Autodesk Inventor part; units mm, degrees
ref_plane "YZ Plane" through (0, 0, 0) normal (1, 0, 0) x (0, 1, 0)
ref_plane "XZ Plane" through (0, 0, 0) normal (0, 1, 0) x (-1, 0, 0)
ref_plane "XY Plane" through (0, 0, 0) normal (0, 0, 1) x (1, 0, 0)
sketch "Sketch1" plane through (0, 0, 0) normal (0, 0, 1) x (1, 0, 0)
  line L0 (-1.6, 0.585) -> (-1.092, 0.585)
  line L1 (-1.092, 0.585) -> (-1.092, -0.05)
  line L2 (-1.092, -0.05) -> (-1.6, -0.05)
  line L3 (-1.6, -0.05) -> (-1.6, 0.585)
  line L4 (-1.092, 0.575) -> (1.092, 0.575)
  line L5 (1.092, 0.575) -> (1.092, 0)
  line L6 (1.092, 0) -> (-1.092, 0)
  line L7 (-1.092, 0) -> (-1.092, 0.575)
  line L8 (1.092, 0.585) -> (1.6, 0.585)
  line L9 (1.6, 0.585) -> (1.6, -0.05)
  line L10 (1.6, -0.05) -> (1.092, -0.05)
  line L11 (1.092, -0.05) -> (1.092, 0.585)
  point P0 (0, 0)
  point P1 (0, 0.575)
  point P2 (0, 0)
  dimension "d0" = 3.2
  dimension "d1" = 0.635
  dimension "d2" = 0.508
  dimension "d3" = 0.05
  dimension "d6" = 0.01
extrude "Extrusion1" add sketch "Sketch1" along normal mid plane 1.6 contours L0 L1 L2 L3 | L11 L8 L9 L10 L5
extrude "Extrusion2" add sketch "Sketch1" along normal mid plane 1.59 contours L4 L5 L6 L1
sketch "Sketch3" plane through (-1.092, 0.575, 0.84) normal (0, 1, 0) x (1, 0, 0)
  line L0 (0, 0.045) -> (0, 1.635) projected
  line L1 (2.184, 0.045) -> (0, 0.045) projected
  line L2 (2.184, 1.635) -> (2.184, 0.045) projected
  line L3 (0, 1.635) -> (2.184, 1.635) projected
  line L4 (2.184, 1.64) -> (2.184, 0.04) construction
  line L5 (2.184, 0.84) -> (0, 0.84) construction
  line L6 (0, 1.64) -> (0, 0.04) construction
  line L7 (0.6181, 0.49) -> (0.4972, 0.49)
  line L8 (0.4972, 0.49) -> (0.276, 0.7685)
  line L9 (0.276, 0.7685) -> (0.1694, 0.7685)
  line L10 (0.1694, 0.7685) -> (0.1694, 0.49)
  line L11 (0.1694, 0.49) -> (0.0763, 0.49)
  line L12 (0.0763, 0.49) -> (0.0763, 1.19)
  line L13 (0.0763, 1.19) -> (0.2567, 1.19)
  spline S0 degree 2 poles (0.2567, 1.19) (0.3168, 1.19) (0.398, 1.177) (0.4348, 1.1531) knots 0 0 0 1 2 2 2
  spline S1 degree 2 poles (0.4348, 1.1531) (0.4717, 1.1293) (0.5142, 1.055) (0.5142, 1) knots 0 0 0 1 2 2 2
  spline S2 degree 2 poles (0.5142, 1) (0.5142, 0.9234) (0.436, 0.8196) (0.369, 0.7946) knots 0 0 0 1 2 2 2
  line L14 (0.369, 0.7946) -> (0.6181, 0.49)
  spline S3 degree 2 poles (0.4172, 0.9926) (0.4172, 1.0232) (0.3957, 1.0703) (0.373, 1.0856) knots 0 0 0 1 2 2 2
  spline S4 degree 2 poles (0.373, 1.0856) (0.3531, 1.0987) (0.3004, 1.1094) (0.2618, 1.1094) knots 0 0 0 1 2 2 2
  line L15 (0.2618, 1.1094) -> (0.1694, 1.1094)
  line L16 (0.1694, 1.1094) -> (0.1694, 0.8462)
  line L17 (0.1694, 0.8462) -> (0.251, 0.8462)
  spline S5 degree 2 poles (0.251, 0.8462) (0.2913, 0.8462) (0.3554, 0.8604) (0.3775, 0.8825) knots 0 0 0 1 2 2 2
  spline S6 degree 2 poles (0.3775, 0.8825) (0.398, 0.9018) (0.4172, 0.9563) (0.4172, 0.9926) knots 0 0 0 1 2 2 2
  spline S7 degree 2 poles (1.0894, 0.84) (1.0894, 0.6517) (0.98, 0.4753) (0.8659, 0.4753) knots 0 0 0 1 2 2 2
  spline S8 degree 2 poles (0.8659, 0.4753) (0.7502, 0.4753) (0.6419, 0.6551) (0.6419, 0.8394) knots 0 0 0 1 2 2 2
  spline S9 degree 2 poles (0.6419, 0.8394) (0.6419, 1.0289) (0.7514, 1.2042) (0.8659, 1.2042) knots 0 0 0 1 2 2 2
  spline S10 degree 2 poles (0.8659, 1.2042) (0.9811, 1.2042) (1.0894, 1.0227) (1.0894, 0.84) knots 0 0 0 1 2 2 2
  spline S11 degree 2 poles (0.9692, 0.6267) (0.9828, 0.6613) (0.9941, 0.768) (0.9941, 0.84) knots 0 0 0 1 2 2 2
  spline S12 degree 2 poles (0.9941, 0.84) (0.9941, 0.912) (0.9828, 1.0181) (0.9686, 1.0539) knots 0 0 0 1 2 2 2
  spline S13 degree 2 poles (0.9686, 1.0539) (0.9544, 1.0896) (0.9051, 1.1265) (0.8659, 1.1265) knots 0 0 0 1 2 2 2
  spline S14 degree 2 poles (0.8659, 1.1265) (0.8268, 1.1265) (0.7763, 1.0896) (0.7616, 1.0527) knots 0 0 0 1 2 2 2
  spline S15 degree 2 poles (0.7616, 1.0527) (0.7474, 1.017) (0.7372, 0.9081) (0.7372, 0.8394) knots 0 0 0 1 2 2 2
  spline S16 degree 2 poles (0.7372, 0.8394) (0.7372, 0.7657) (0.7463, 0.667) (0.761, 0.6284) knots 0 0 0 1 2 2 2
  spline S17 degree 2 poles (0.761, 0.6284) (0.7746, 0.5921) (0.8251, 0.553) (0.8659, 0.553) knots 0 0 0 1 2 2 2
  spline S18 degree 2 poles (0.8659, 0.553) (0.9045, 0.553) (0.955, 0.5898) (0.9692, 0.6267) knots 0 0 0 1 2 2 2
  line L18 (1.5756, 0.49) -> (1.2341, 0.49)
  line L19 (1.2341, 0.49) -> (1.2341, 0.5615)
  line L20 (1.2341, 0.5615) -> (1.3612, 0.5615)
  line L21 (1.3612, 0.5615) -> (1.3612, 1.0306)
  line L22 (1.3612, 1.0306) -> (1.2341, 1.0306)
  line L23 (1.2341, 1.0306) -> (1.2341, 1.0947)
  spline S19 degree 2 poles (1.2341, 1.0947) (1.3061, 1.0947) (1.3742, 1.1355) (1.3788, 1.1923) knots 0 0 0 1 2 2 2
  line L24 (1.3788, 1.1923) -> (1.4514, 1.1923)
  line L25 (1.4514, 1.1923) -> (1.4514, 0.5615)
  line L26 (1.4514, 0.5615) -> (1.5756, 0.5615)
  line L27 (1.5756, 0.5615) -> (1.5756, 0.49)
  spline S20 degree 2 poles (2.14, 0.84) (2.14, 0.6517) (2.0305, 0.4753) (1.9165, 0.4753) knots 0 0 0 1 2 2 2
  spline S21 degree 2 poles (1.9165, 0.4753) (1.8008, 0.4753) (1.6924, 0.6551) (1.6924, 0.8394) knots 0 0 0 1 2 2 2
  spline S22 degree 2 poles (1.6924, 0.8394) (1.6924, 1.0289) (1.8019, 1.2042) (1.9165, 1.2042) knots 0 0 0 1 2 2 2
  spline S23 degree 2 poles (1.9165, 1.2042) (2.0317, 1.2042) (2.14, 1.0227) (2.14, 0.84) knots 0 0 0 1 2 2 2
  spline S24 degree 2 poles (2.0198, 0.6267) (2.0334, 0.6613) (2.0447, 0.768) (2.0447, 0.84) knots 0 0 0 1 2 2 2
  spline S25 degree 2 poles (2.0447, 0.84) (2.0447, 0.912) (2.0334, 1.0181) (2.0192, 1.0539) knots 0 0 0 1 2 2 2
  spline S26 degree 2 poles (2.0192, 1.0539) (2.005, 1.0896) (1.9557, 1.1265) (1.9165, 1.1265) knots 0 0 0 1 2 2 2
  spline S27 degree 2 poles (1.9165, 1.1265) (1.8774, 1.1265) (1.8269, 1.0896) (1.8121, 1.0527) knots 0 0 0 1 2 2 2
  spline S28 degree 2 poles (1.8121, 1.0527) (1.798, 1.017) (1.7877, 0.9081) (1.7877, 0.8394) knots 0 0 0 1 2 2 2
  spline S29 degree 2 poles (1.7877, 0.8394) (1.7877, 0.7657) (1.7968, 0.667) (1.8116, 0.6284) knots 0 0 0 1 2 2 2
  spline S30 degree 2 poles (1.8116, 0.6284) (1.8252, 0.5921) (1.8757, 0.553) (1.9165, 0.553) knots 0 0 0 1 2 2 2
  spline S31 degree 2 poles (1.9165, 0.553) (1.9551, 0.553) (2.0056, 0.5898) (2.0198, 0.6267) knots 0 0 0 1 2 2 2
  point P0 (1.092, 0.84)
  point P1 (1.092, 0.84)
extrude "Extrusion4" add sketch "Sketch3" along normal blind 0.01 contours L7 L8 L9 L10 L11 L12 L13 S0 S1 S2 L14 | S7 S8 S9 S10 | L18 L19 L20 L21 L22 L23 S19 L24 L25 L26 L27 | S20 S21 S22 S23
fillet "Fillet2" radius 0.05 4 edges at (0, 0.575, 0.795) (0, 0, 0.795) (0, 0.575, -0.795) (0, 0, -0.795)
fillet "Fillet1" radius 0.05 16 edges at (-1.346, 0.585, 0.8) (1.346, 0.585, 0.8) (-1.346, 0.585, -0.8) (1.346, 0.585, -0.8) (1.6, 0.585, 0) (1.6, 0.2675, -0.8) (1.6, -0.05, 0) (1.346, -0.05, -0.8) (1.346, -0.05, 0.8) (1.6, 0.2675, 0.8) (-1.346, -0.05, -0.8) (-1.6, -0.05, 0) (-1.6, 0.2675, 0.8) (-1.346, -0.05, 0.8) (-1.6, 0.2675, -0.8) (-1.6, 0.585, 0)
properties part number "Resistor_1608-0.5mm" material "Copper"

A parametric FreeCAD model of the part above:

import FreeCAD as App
import Part
import Sketcher
from FreeCAD import Vector
Q = App.Units.Quantity


def edges_at(feature, points):
    """Names of the edges that pass closest to the given points."""
    edges = feature.Shape.Edges
    near = lambda p: min(range(len(edges)), key=lambda i: edges[i].distToShape(Part.Vertex(*p))[0])
    return sorted({f"Edge{near(p) + 1}" for p in points})


def add_polygon(sketch, points):
    """Adds a closed chain of lines whose ends are joined by coincident constraints."""
    first, n = sketch.GeometryCount, len(points)
    for a, b in zip(points, points[1:] + points[:1]):
        sketch.addGeometry(Part.LineSegment(App.Vector(*a, 0), App.Vector(*b, 0)), False)
    for i in range(n):
        sketch.addConstraint(Sketcher.Constraint("Coincident", first + i, 2, first + (i + 1) % n, 1))

doc = App.newDocument("Part")
body = doc.addObject("PartDesign::Body", "Body")
body.AllowCompound = True

# Sketch on XY plane
sketch1 = body.newObject("Sketcher::SketchObject", "Sketch")
sketch1.AttachmentSupport = (doc.getObject("XY_Plane"), [""])
sketch1.MapMode = "FlatFace"
add_polygon(sketch1, [(-1.1, 0.6), (-1.6, 0.6), (-1.6, -0.1), (-1.1, -0.1)])  # lines 0-3
add_polygon(sketch1, [(1.1, 0.6), (1.1, -0.1), (1.6, -0.1), (1.6, 0.6)])  # lines 4-7
sketch1.addConstraint([
    Sketcher.Constraint("Horizontal", 0),
    Sketcher.Constraint("Vertical", 1),
    Sketcher.Constraint("Horizontal", 2),
    Sketcher.Constraint("Vertical", 3),
    Sketcher.Constraint("Vertical", 4),
    Sketcher.Constraint("Horizontal", 5),
    Sketcher.Constraint("Vertical", 6),
    Sketcher.Constraint("Horizontal", 7),
    Sketcher.Constraint("Symmetric", 2, 2, 4, 2, -2),
    Sketcher.Constraint("Symmetric", 0, 2, 6, 2, -2),
    Sketcher.Constraint("DistanceX", 0, 2, 0, 1, Q("0.02 in")),
    Sketcher.Constraint("DistanceY", 1, 2, 1, 1, Q("0.025 in")),
    Sketcher.Constraint("DistanceY", 1, 2, -1, 1, Q("0.05 mm")),
    Sketcher.Constraint("DistanceX", 1, 2, 5, 2, Q("3.2 mm")),
])
pad1 = body.newObject("PartDesign::Pad", "Pad")
pad1.Profile = sketch1
pad1.Length = Q("0.0629921 in")
pad1.Midplane = True

# Sketch on XY plane
sketch2 = body.newObject("Sketcher::SketchObject", "Sketch001")
sketch2.AttachmentSupport = (doc.getObject("XY_Plane"), [""])
sketch2.MapMode = "FlatFace"
add_polygon(sketch2, [(1.1, 0.6), (-1.1, 0.6), (-1.1, 0), (1.1, 0)])  # lines 0-3
sketch2.addConstraint([
    Sketcher.Constraint("Horizontal", 0),
    Sketcher.Constraint("Vertical", 1),
    Sketcher.Constraint("Horizontal", 2),
    Sketcher.Constraint("Vertical", 3),
    Sketcher.Constraint("Symmetric", 1, 2, 2, 2, -1, 1),
    Sketcher.Constraint("DistanceX", 0, 2, -1, 1, Q("0.043 in")),
    Sketcher.Constraint("DistanceY", 1, 2, 1, 1, Q("0.575 mm")),
])
pad2 = body.newObject("PartDesign::Pad", "Pad001")
pad2.Profile = sketch2
pad2.Length = Q("0.0625984 in")
pad2.Midplane = True

# Sketch on XZ plane
sketch3 = body.newObject("Sketcher::SketchObject", "Sketch002")
sketch3.AttachmentSupport = (doc.getObject("XZ_Plane"), [""])
sketch3.MapMode = "FlatFace"
sketch3.AttachmentOffset = App.Placement(Vector(0, 0, -0.575), App.Rotation())
sketch3.addGeometry([
    Part.LineSegment(Vector(-0.5948, 0.35, 0), Vector(-0.4739, 0.35, 0)),  # 0
    Part.LineSegment(Vector(-0.4739, 0.35, 0), Vector(-0.723, 0.0454, 0)),  # 1
    Part.BSplineCurve([Vector(-0.5778, -0.16, 0), Vector(-0.5778, -0.0834, 0), Vector(-0.656, 0.0204, 0), Vector(-0.723, 0.0454, 0)], [3, 1, 3], [0, 1, 2], False, 2, [1, 1, 1, 1], False),  # 2
    Part.BSplineCurve([Vector(-0.6572, -0.3131, 0), Vector(-0.6203, -0.2893, 0), Vector(-0.5778, -0.215, 0), Vector(-0.5778, -0.16, 0)], [3, 1, 3], [0, 1, 2], False, 2, [1, 1, 1, 1], False),  # 3
    Part.BSplineCurve([Vector(-0.8353, -0.35, 0), Vector(-0.7752, -0.35, 0), Vector(-0.694, -0.337, 0), Vector(-0.6572, -0.3131, 0)], [3, 1, 3], [0, 1, 2], False, 2, [1, 1, 1, 1], False),  # 4
    Part.LineSegment(Vector(-0.8353, -0.35, 0), Vector(-1.0157, -0.35, 0)),  # 5
    Part.LineSegment(Vector(-1.0157, -0.35, 0), Vector(-1.0157, 0.35, 0)),  # 6
    Part.LineSegment(Vector(-1.0157, 0.35, 0), Vector(-0.9226, 0.35, 0)),  # 7
    Part.LineSegment(Vector(-0.9226, 0.35, 0), Vector(-0.9226, 0.0715, 0)),  # 8
    Part.LineSegment(Vector(-0.9226, 0.0715, 0), Vector(-0.816, 0.0715, 0)),  # 9
    Part.LineSegment(Vector(-0.816, 0.0715, 0), Vector(-0.5948, 0.35, 0)),  # 10
    Part.BSplineCurve([Vector(-0.6748, -0.1526, 0), Vector(-0.6748, -0.1832, 0), Vector(-0.6963, -0.2303, 0), Vector(-0.719, -0.2456, 0)], [3, 1, 3], [0, 1, 2], False, 2, [1, 1, 1, 1], False),  # 11
    Part.BSplineCurve([Vector(-0.7145, -0.0425, 0), Vector(-0.694, -0.0618, 0), Vector(-0.6748, -0.1163, 0), Vector(-0.6748, -0.1526, 0)], [3, 1, 3], [0, 1, 2], False, 2, [1, 1, 1, 1], False),  # 12
    Part.BSplineCurve([Vector(-0.841, -0.0062, 0), Vector(-0.8007, -0.0062, 0), Vector(-0.7366, -0.0204, 0), Vector(-0.7145, -0.0425, 0)], [3, 1, 3], [0, 1, 2], False, 2, [1, 1, 1, 1], False),  # 13
    Part.LineSegment(Vector(-0.841, -0.0062, 0), Vector(-0.9226, -0.0062, 0)),  # 14
    Part.LineSegment(Vector(-0.9226, -0.0062, 0), Vector(-0.9226, -0.2694, 0)),  # 15
    Part.LineSegment(Vector(-0.9226, -0.2694, 0), Vector(-0.8302, -0.2694, 0)),  # 16
    Part.BSplineCurve([Vector(-0.719, -0.2456, 0), Vector(-0.7389, -0.2587, 0), Vector(-0.7916, -0.2694, 0), Vector(-0.8302, -0.2694, 0)], [3, 1, 3], [0, 1, 2], False, 2, [1, 1, 1, 1], False),  # 17
    Part.BSplineCurve([Vector(-0.0026, 0, 0), Vector(-0.0026, 0.1883, 0), Vector(-0.112, 0.3647, 0), Vector(-0.2261, 0.3647, 0)], [3, 1, 3], [0, 1, 2], False, 2, [1, 1, 1, 1], False),  # 18
    Part.BSplineCurve([Vector(-0.2261, -0.3642, 0), Vector(-0.1109, -0.3642, 0), Vector(-0.0026, -0.1827, 0), Vector(-0.0026, 0, 0)], [3, 1, 3], [0, 1, 2], False, 2, [1, 1, 1, 1], False),  # 19
    Part.BSplineCurve([Vector(-0.4501, 0.0006, 0), Vector(-0.4501, -0.1889, 0), Vector(-0.3406, -0.3642, 0), Vector(-0.2261, -0.3642, 0)], [3, 1, 3], [0, 1, 2], False, 2, [1, 1, 1, 1], False),  # 20
    Part.BSplineCurve([Vector(-0.2261, 0.3647, 0), Vector(-0.3418, 0.3647, 0), Vector(-0.4501, 0.1849, 0), Vector(-0.4501, 0.0006, 0)], [3, 1, 3], [0, 1, 2], False, 2, [1, 1, 1, 1], False),  # 21
    Part.BSplineCurve([Vector(-0.1228, 0.2133, 0), Vector(-0.1092, 0.1787, 0), Vector(-0.0979, 0.072, 0), Vector(-0.0979, 0, 0)], [3, 1, 3], [0, 1, 2], False, 2, [1, 1, 1, 1], False),  # 22
    Part.BSplineCurve([Vector(-0.2261, 0.287, 0), Vector(-0.1875, 0.287, 0), Vector(-0.137, 0.2502, 0), Vector(-0.1228, 0.2133, 0)], [3, 1, 3], [0, 1, 2], False, 2, [1, 1, 1, 1], False),  # 23
    Part.BSplineCurve([Vector(-0.331, 0.2116, 0), Vector(-0.3174, 0.2479, 0), Vector(-0.2669, 0.287, 0), Vector(-0.2261, 0.287, 0)], [3, 1, 3], [0, 1, 2], False, 2, [1, 1, 1, 1], False),  # 24
    Part.BSplineCurve([Vector(-0.3548, 0.0006, 0), Vector(-0.3548, 0.0743, 0), Vector(-0.3457, 0.173, 0), Vector(-0.331, 0.2116, 0)], [3, 1, 3], [0, 1, 2], False, 2, [1, 1, 1, 1], False),  # 25
    Part.BSplineCurve([Vector(-0.3304, -0.2127, 0), Vector(-0.3446, -0.177, 0), Vector(-0.3548, -0.0681, 0), Vector(-0.3548, 0.0006, 0)], [3, 1, 3], [0, 1, 2], False, 2, [1, 1, 1, 1], False),  # 26
    Part.BSplineCurve([Vector(-0.2261, -0.2865, 0), Vector(-0.2652, -0.2865, 0), Vector(-0.3157, -0.2496, 0), Vector(-0.3304, -0.2127, 0)], [3, 1, 3], [0, 1, 2], False, 2, [1, 1, 1, 1], False),  # 27
    Part.BSplineCurve([Vector(-0.1234, -0.2139, 0), Vector(-0.1376, -0.2496, 0), Vector(-0.1869, -0.2865, 0), Vector(-0.2261, -0.2865, 0)], [3, 1, 3], [0, 1, 2], False, 2, [1, 1, 1, 1], False),  # 28
    Part.BSplineCurve([Vector(-0.0979, 0, 0), Vector(-0.0979, -0.072, 0), Vector(-0.1092, -0.1781, 0), Vector(-0.1234, -0.2139, 0)], [3, 1, 3], [0, 1, 2], False, 2, [1, 1, 1, 1], False),  # 29
    Part.LineSegment(Vector(0.1421, 0.35, 0), Vector(0.4836, 0.35, 0)),  # 30
    Part.LineSegment(Vector(0.4836, 0.35, 0), Vector(0.4836, 0.2785, 0)),  # 31
    Part.LineSegment(Vector(0.4836, 0.2785, 0), Vector(0.3594, 0.2785, 0)),  # 32
    Part.LineSegment(Vector(0.3594, 0.2785, 0), Vector(0.3594, -0.3523, 0)),  # 33
    Part.LineSegment(Vector(0.3594, -0.3523, 0), Vector(0.2868, -0.3523, 0)),  # 34
    Part.BSplineCurve([Vector(0.1421, -0.2547, 0), Vector(0.2141, -0.2547, 0), Vector(0.2822, -0.2955, 0), Vector(0.2868, -0.3523, 0)], [3, 1, 3], [0, 1, 2], False, 2, [1, 1, 1, 1], False),  # 35
    Part.LineSegment(Vector(0.1421, -0.2547, 0), Vector(0.1421, -0.1906, 0)),  # 36
    Part.LineSegment(Vector(0.1421, -0.1906, 0), Vector(0.2692, -0.1906, 0)),  # 37
    Part.LineSegment(Vector(0.2692, -0.1906, 0), Vector(0.2692, 0.2785, 0)),  # 38
    Part.LineSegment(Vector(0.2692, 0.2785, 0), Vector(0.1421, 0.2785, 0)),  # 39
    Part.LineSegment(Vector(0.1421, 0.2785, 0), Vector(0.1421, 0.35, 0)),  # 40
    Part.BSplineCurve([Vector(1.048, 0, 0), Vector(1.048, 0.1883, 0), Vector(0.9385, 0.3647, 0), Vector(0.8245, 0.3647, 0)], [3, 1, 3], [0, 1, 2], False, 2, [1, 1, 1, 1], False),  # 41
    Part.BSplineCurve([Vector(0.8245, -0.3642, 0), Vector(0.9397, -0.3642, 0), Vector(1.048, -0.1827, 0), Vector(1.048, 0, 0)], [3, 1, 3], [0, 1, 2], False, 2, [1, 1, 1, 1], False),  # 42
    Part.BSplineCurve([Vector(0.6004, 0.0006, 0), Vector(0.6004, -0.1889, 0), Vector(0.7099, -0.3642, 0), Vector(0.8245, -0.3642, 0)], [3, 1, 3], [0, 1, 2], False, 2, [1, 1, 1, 1], False),  # 43
    Part.BSplineCurve([Vector(0.8245, 0.3647, 0), Vector(0.7088, 0.3647, 0), Vector(0.6004, 0.1849, 0), Vector(0.6004, 0.0006, 0)], [3, 1, 3], [0, 1, 2], False, 2, [1, 1, 1, 1], False),  # 44
    Part.BSplineCurve([Vector(0.9278, 0.2133, 0), Vector(0.9414, 0.1787, 0), Vector(0.9527, 0.072, 0), Vector(0.9527, 0, 0)], [3, 1, 3], [0, 1, 2], False, 2, [1, 1, 1, 1], False),  # 45
    Part.BSplineCurve([Vector(0.8245, 0.287, 0), Vector(0.8631, 0.287, 0), Vector(0.9136, 0.2502, 0), Vector(0.9278, 0.2133, 0)], [3, 1, 3], [0, 1, 2], False, 2, [1, 1, 1, 1], False),  # 46
    Part.BSplineCurve([Vector(0.7196, 0.2116, 0), Vector(0.7332, 0.2479, 0), Vector(0.7837, 0.287, 0), Vector(0.8245, 0.287, 0)], [3, 1, 3], [0, 1, 2], False, 2, [1, 1, 1, 1], False),  # 47
    Part.BSplineCurve([Vector(0.6957, 0.0006, 0), Vector(0.6957, 0.0743, 0), Vector(0.7048, 0.173, 0), Vector(0.7196, 0.2116, 0)], [3, 1, 3], [0, 1, 2], False, 2, [1, 1, 1, 1], False),  # 48
    Part.BSplineCurve([Vector(0.7201, -0.2127, 0), Vector(0.706, -0.177, 0), Vector(0.6957, -0.0681, 0), Vector(0.6957, 0.0006, 0)], [3, 1, 3], [0, 1, 2], False, 2, [1, 1, 1, 1], False),  # 49
    Part.BSplineCurve([Vector(0.8245, -0.2865, 0), Vector(0.7854, -0.2865, 0), Vector(0.7349, -0.2496, 0), Vector(0.7201, -0.2127, 0)], [3, 1, 3], [0, 1, 2], False, 2, [1, 1, 1, 1], False),  # 50
    Part.BSplineCurve([Vector(0.9272, -0.2139, 0), Vector(0.913, -0.2496, 0), Vector(0.8637, -0.2865, 0), Vector(0.8245, -0.2865, 0)], [3, 1, 3], [0, 1, 2], False, 2, [1, 1, 1, 1], False),  # 51
    Part.BSplineCurve([Vector(0.9527, 0, 0), Vector(0.9527, -0.072, 0), Vector(0.9414, -0.1781, 0), Vector(0.9272, -0.2139, 0)], [3, 1, 3], [0, 1, 2], False, 2, [1, 1, 1, 1], False),  # 52
], False)
sketch3.addConstraint([
    Sketcher.Constraint("Block", 2),
    Sketcher.Constraint("Block", 3),
    Sketcher.Constraint("Block", 4),
    Sketcher.Constraint("Block", 11),
    Sketcher.Constraint("Block", 12),
    Sketcher.Constraint("Block", 13),
    Sketcher.Constraint("Block", 17),
    Sketcher.Constraint("Block", 18),
    Sketcher.Constraint("Block", 19),
    Sketcher.Constraint("Block", 20),
    Sketcher.Constraint("Block", 21),
    Sketcher.Constraint("Block", 22),
    Sketcher.Constraint("Block", 23),
    Sketcher.Constraint("Block", 24),
    Sketcher.Constraint("Block", 25),
    Sketcher.Constraint("Block", 26),
    Sketcher.Constraint("Block", 27),
    Sketcher.Constraint("Block", 28),
    Sketcher.Constraint("Block", 29),
    Sketcher.Constraint("Block", 35),
    Sketcher.Constraint("Block", 41),
    Sketcher.Constraint("Block", 42),
    Sketcher.Constraint("Block", 43),
    Sketcher.Constraint("Block", 44),
    Sketcher.Constraint("Block", 45),
    Sketcher.Constraint("Block", 46),
    Sketcher.Constraint("Block", 47),
    Sketcher.Constraint("Block", 48),
    Sketcher.Constraint("Block", 49),
    Sketcher.Constraint("Block", 50),
    Sketcher.Constraint("Block", 51),
    Sketcher.Constraint("Block", 52),
    Sketcher.Constraint("Coincident", 0, 2, 1, 1),
    Sketcher.Constraint("Coincident", 1, 2, 2, 2),
    Sketcher.Constraint("Coincident", 4, 1, 5, 1),
    Sketcher.Constraint("Coincident", 5, 2, 6, 1),
    Sketcher.Constraint("Coincident", 6, 2, 7, 1),
    Sketcher.Constraint("Coincident", 7, 2, 8, 1),
    Sketcher.Constraint("Coincident", 8, 2, 9, 1),
    Sketcher.Constraint("Coincident", 9, 2, 10, 1),
    Sketcher.Constraint("Coincident", 10, 2, 0, 1),
    Sketcher.Constraint("Coincident", 13, 1, 14, 1),
    Sketcher.Constraint("Coincident", 14, 2, 15, 1),
    Sketcher.Constraint("Coincident", 15, 2, 16, 1),
    Sketcher.Constraint("Coincident", 16, 2, 17, 2),
    Sketcher.Constraint("Coincident", 30, 2, 31, 1),
    Sketcher.Constraint("Coincident", 31, 2, 32, 1),
    Sketcher.Constraint("Coincident", 32, 2, 33, 1),
    Sketcher.Constraint("Coincident", 33, 2, 34, 1),
    Sketcher.Constraint("Coincident", 34, 2, 35, 2),
    Sketcher.Constraint("Coincident", 35, 1, 36, 1),
    Sketcher.Constraint("Coincident", 36, 2, 37, 1),
    Sketcher.Constraint("Coincident", 37, 2, 38, 1),
    Sketcher.Constraint("Coincident", 38, 2, 39, 1),
    Sketcher.Constraint("Coincident", 39, 2, 40, 1),
    Sketcher.Constraint("Coincident", 40, 2, 30, 1),
    Sketcher.Constraint("Horizontal", 0),
    Sketcher.Constraint("Horizontal", 5),
    Sketcher.Constraint("Vertical", 6),
    Sketcher.Constraint("Horizontal", 7),
    Sketcher.Constraint("Vertical", 8),
    Sketcher.Constraint("Horizontal", 9),
    Sketcher.Constraint("Horizontal", 14),
    Sketcher.Constraint("Vertical", 15),
    Sketcher.Constraint("Horizontal", 16),
    Sketcher.Constraint("Horizontal", 30),
    Sketcher.Constraint("Vertical", 31),
    Sketcher.Constraint("Horizontal", 32),
    Sketcher.Constraint("Vertical", 33),
    Sketcher.Constraint("Horizontal", 34),
    Sketcher.Constraint("Vertical", 36),
    Sketcher.Constraint("Horizontal", 37),
    Sketcher.Constraint("Vertical", 38),
    Sketcher.Constraint("Horizontal", 39),
    Sketcher.Constraint("Vertical", 40),
    Sketcher.Constraint("Horizontal", 0, 2, 6, 2),
    Sketcher.Constraint("Horizontal", 10, 2, 30, 2),
    Sketcher.Constraint("Horizontal", 32, 2, 38, 2),
    Sketcher.Constraint("Vertical", 8, 2, 14, 2),
    Sketcher.Constraint("Vertical", 36, 2, 39, 2),
    Sketcher.Constraint("DistanceX", 37, 1, 37, 2, Q("0.005 in")),
    Sketcher.Constraint("DistanceX", 5, 2, -1, 1, Q("0.04 in")),
    Sketcher.Constraint("Distance", 10, Q("0.014 in")),
    Sketcher.Constraint("DistanceX", 9, 1, 9, 2, Q("0.0042 in")),
    Sketcher.Constraint("DistanceX", 32, 2, 32, 1, Q("0.0049 in")),
    Sketcher.Constraint("DistanceY", 1, 2, 0, 2, Q("0.012 in")),
    Sketcher.Constraint("Distance", 1, Q("0.0155 in")),
    Sketcher.Constraint("DistanceX", 0, 1, 0, 2, Q("0.121 mm")),
    Sketcher.Constraint("DistanceX", 7, 1, 7, 2, Q("0.093 mm")),
    Sketcher.Constraint("DistanceX", 30, 1, 30, 2, Q("0.3415 mm")),
    Sketcher.Constraint("DistanceY", 31, 2, 31, 1, Q("0.0715 mm")),
    Sketcher.Constraint("DistanceY", 36, 1, 36, 2, Q("0.064 mm")),
])
pad3 = body.newObject("PartDesign::Pad", "Pad002")
pad3.Profile = sketch3
pad3.Length = Q("0.0003937 in")
pad3.Reversed = True
doc.recompute()

fillet = body.newObject("PartDesign::Fillet", "Fillet")
fillet.Base = (pad3, edges_at(pad3, [
    (0, 0.575, 0.795),
    (0, 0, 0.795),
    (0, 0.575, -0.795),
    (0, 0, -0.795),
]))
fillet.Radius = 0.05
doc.recompute()

fillet2 = body.newObject("PartDesign::Fillet", "Fillet001")
fillet2.Base = (fillet, edges_at(fillet, [
    (-1.346, 0.585, 0.8),
    (1.346, 0.585, 0.8),
    (-1.346, 0.585, -0.8),
    (1.346, 0.585, -0.8),
    (1.6, 0.585, 0),
    (1.6, 0.268, -0.8),
    (1.6, -0.05, 0),
    (1.346, -0.05, -0.8),
    (1.346, -0.05, 0.8),
    (1.6, 0.268, 0.8),
    (-1.346, -0.05, -0.8),
    (-1.6, -0.05, 0),
    (-1.6, 0.268, 0.8),
    (-1.346, -0.05, 0.8),
    (-1.6, 0.268, -0.8),
    (-1.6, 0.585, 0),
]))
fillet2.Radius = 0.05

doc.recompute()
